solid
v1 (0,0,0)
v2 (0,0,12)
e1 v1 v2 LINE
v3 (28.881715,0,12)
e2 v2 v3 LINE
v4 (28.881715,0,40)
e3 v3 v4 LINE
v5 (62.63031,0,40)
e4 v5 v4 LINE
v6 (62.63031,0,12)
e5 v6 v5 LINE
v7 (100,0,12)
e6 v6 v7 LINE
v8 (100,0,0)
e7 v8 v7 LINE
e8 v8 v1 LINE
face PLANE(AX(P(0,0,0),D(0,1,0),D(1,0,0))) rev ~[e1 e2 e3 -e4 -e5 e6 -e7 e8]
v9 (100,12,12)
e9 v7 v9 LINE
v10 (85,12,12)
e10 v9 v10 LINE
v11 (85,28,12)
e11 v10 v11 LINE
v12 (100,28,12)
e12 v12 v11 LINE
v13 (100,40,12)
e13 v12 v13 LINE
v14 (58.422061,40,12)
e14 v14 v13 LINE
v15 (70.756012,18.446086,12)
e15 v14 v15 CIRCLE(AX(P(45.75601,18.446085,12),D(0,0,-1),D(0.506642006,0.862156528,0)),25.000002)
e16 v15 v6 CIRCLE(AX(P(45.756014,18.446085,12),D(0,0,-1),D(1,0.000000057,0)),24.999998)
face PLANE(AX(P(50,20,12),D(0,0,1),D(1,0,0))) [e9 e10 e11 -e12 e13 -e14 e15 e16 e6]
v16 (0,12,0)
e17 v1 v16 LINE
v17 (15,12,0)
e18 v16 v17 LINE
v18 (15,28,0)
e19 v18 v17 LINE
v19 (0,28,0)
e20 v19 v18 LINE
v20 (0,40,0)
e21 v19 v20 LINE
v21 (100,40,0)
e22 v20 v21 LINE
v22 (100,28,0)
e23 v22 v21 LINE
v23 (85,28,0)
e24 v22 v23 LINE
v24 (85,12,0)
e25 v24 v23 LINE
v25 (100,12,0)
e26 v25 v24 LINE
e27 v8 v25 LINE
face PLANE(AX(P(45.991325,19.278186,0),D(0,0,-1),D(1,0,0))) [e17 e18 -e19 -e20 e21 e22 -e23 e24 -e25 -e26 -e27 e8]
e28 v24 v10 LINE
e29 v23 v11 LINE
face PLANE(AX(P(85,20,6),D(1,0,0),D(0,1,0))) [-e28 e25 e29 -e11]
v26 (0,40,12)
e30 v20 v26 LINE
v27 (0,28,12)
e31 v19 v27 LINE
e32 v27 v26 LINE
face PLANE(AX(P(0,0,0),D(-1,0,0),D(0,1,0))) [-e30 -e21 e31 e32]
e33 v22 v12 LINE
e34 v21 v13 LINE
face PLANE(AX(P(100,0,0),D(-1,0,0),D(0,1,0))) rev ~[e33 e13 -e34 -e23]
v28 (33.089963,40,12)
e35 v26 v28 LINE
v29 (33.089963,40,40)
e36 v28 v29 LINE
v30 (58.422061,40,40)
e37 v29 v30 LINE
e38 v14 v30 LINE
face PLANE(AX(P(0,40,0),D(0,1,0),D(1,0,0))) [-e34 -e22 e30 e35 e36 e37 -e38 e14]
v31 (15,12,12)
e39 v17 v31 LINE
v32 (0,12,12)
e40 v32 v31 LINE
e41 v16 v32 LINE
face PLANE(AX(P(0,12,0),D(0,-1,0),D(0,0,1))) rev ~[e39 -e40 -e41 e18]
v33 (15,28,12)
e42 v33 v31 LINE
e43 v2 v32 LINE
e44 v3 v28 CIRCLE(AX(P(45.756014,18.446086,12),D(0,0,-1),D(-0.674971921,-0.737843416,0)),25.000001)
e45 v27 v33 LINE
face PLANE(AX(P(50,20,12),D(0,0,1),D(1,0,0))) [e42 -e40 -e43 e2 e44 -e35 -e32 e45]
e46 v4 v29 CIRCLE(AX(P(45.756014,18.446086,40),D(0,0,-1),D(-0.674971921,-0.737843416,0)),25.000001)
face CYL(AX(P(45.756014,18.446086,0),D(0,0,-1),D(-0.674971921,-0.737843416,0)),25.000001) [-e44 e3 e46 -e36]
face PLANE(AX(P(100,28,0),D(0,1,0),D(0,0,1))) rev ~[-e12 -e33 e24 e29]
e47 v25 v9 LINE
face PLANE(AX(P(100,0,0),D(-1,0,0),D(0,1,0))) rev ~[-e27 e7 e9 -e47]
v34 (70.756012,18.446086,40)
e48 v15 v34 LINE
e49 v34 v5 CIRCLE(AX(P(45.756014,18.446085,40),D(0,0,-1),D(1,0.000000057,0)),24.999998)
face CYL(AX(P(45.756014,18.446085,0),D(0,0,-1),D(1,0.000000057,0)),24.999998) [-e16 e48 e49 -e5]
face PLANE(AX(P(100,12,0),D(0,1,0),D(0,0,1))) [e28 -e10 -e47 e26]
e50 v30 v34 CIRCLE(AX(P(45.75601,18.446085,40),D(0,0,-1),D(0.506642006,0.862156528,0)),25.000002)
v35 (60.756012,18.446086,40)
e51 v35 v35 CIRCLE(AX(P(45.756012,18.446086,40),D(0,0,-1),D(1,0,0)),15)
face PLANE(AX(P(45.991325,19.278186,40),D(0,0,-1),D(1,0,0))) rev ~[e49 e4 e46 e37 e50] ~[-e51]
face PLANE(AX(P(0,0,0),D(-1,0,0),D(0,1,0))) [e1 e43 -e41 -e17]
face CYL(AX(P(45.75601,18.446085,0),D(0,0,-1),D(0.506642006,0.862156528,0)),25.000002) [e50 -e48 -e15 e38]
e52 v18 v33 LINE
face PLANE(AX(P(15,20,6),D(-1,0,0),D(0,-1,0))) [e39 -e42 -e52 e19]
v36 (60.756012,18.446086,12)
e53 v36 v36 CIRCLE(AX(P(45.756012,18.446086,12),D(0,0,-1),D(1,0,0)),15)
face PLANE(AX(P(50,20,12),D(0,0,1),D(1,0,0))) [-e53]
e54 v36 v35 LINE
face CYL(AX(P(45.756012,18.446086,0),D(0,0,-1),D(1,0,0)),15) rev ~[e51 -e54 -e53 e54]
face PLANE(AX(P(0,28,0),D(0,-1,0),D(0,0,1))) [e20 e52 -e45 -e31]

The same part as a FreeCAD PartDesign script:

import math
import FreeCAD as App
import Part
import Sketcher


def add_polygon(sketch, points):
    """Adds a closed chain of lines whose ends are joined by coincident constraints."""
    first, n = sketch.GeometryCount, len(points)
    for a, b in zip(points, points[1:] + points[:1]):
        sketch.addGeometry(Part.LineSegment(App.Vector(*a, 0), App.Vector(*b, 0)), False)
    for i in range(n):
        sketch.addConstraint(Sketcher.Constraint("Coincident", first + i, 2, first + (i + 1) % n, 1))

doc = App.newDocument("Part")
body = doc.addObject("PartDesign::Body", "Body")

sketch1 = doc.addObject("Sketcher::SketchObject", "Sketch")
body.addObject(sketch1)
sketch1.AttachmentSupport = (doc.XY_Plane, [""])
sketch1.MapMode = "FlatFace"
add_polygon(sketch1, [(0, 40), (0, 0), (100, 0), (100, 40)])
sketch1.addConstraint([
    Sketcher.Constraint("Vertical", 0),
    Sketcher.Constraint("Horizontal", 1),
    Sketcher.Constraint("Vertical", 2),
    Sketcher.Constraint("Horizontal", 3),
    Sketcher.Constraint("Coincident", 0, 2, -1, 1),
    Sketcher.Constraint("DistanceX", 1, 1, 1, 2, 100.0),
    Sketcher.Constraint("DistanceY", 0, 2, 0, 1, 40.0),
])
pad1 = doc.addObject("PartDesign::Pad", "Pad")
body.addObject(pad1)
pad1.Profile = sketch1
pad1.Length = 12

sketch2 = doc.addObject("Sketcher::SketchObject", "Sketch001")
body.addObject(sketch2)
sketch2.AttachmentSupport = (doc.YZ_Plane, [""])
sketch2.MapMode = "FlatFace"
sketch2.AttachmentOffset = App.Placement(App.Vector(0, 0, 100), App.Rotation())
add_polygon(sketch2, [(12, 12), (12, 0), (28, 0), (28, 12)])
sketch2.addConstraint([
    Sketcher.Constraint("Vertical", 0),
    Sketcher.Constraint("Horizontal", 1),
    Sketcher.Constraint("Vertical", 2),
    Sketcher.Constraint("Horizontal", 3),
    Sketcher.Constraint("PointOnObject", 0, 2, -1),
    Sketcher.Constraint("DistanceX", 1, 1, 1, 2, 16.0),
    Sketcher.Constraint("DistanceY", 0, 2, 0, 1, 12.0),
    Sketcher.Constraint("DistanceX", -1, 1, 0, 2, 12.0),
])
pocket1 = doc.addObject("PartDesign::Pocket", "Pocket")
body.addObject(pocket1)
pocket1.Profile = sketch2
pocket1.Length = 15

sketch3 = doc.addObject("Sketcher::SketchObject", "Sketch002")
body.addObject(sketch3)
sketch3.AttachmentSupport = (doc.YZ_Plane, [""])
sketch3.MapMode = "FlatFace"
add_polygon(sketch3, [(28, 12), (28, 0), (12, 0), (12, 12)])
sketch3.addConstraint([
    Sketcher.Constraint("Vertical", 0),
    Sketcher.Constraint("Horizontal", 1),
    Sketcher.Constraint("Vertical", 2),
    Sketcher.Constraint("Horizontal", 3),
    Sketcher.Constraint("PointOnObject", 0, 2, -1),
    Sketcher.Constraint("DistanceX", 1, 2, 1, 1, 16.0),
    Sketcher.Constraint("DistanceY", 0, 2, 0, 1, 12.0),
    Sketcher.Constraint("DistanceX", -1, 1, 0, 2, 28.0),
])
pocket2 = doc.addObject("PartDesign::Pocket", "Pocket001")
body.addObject(pocket2)
pocket2.Profile = sketch3
pocket2.Length = 15
pocket2.Reversed = True

sketch4 = doc.addObject("Sketcher::SketchObject", "Sketch003")
body.addObject(sketch4)
sketch4.AttachmentSupport = (doc.XY_Plane, [""])
sketch4.MapMode = "FlatFace"
sketch4.addGeometry([
    Part.ArcOfCircle(Part.Circle(App.Vector(45.75601, 18.446085, 0), App.Vector(0, 0, 1), 25.000002), math.radians(0.000003), math.radians(59.559587)),
    Part.ArcOfCircle(Part.Circle(App.Vector(45.756014, 18.446085, 0), App.Vector(0, 0, 1), 24.999998), math.radians(-47.548032), math.radians(0.000003)),
    Part.LineSegment(App.Vector(62.63031, 0, 0), App.Vector(28.881715, 0, 0)),
    Part.ArcOfCircle(Part.Circle(App.Vector(45.756014, 18.446086, 0), App.Vector(0, 0, 1), 25.000001), math.radians(120.440413), math.radians(227.54803)),
    Part.LineSegment(App.Vector(33.089963, 40, 0), App.Vector(58.422061, 40, 0)),
    Part.Circle(App.Vector(45.756012, 18.446086, 0), App.Vector(0, 0, 1), 15),
], False)
sketch4.addConstraint([
    Sketcher.Constraint("Tangent", 0, 1, 1, 2),
    Sketcher.Constraint("Coincident", 1, 1, 2, 1),
    Sketcher.Constraint("Coincident", 2, 2, 3, 2),
    Sketcher.Constraint("Coincident", 3, 1, 4, 1),
    Sketcher.Constraint("Coincident", 4, 2, 0, 2),
    Sketcher.Constraint("Horizontal", 2),
    Sketcher.Constraint("Horizontal", 4),
    Sketcher.Constraint("Coincident", 3, 3, 0, 3),
    Sketcher.Constraint("Coincident", 5, 3, 0, 3),
    Sketcher.Constraint("Equal", 0, 3),
    Sketcher.Constraint("PointOnObject", 1, 1, -1),
    Sketcher.Constraint("Horizontal", 5, 3, 0, 1),
    Sketcher.Constraint("Diameter", 5, 30.0),
    Sketcher.Constraint("Radius", 1, 24.999998),
    Sketcher.Constraint("Radius", 3, 25.000001),
    Sketcher.Constraint("DistanceY", -1, 1, 3, 1, 40.0),
    Sketcher.Constraint("DistanceX", 4, 1, 4, 2, 25.332098),
    Sketcher.Constraint("DistanceX", -1, 1, 0, 3, 45.75601),
])
pad2 = doc.addObject("PartDesign::Pad", "Pad001")
body.addObject(pad2)
pad2.Profile = sketch4
pad2.Length = 40

doc.recompute()
